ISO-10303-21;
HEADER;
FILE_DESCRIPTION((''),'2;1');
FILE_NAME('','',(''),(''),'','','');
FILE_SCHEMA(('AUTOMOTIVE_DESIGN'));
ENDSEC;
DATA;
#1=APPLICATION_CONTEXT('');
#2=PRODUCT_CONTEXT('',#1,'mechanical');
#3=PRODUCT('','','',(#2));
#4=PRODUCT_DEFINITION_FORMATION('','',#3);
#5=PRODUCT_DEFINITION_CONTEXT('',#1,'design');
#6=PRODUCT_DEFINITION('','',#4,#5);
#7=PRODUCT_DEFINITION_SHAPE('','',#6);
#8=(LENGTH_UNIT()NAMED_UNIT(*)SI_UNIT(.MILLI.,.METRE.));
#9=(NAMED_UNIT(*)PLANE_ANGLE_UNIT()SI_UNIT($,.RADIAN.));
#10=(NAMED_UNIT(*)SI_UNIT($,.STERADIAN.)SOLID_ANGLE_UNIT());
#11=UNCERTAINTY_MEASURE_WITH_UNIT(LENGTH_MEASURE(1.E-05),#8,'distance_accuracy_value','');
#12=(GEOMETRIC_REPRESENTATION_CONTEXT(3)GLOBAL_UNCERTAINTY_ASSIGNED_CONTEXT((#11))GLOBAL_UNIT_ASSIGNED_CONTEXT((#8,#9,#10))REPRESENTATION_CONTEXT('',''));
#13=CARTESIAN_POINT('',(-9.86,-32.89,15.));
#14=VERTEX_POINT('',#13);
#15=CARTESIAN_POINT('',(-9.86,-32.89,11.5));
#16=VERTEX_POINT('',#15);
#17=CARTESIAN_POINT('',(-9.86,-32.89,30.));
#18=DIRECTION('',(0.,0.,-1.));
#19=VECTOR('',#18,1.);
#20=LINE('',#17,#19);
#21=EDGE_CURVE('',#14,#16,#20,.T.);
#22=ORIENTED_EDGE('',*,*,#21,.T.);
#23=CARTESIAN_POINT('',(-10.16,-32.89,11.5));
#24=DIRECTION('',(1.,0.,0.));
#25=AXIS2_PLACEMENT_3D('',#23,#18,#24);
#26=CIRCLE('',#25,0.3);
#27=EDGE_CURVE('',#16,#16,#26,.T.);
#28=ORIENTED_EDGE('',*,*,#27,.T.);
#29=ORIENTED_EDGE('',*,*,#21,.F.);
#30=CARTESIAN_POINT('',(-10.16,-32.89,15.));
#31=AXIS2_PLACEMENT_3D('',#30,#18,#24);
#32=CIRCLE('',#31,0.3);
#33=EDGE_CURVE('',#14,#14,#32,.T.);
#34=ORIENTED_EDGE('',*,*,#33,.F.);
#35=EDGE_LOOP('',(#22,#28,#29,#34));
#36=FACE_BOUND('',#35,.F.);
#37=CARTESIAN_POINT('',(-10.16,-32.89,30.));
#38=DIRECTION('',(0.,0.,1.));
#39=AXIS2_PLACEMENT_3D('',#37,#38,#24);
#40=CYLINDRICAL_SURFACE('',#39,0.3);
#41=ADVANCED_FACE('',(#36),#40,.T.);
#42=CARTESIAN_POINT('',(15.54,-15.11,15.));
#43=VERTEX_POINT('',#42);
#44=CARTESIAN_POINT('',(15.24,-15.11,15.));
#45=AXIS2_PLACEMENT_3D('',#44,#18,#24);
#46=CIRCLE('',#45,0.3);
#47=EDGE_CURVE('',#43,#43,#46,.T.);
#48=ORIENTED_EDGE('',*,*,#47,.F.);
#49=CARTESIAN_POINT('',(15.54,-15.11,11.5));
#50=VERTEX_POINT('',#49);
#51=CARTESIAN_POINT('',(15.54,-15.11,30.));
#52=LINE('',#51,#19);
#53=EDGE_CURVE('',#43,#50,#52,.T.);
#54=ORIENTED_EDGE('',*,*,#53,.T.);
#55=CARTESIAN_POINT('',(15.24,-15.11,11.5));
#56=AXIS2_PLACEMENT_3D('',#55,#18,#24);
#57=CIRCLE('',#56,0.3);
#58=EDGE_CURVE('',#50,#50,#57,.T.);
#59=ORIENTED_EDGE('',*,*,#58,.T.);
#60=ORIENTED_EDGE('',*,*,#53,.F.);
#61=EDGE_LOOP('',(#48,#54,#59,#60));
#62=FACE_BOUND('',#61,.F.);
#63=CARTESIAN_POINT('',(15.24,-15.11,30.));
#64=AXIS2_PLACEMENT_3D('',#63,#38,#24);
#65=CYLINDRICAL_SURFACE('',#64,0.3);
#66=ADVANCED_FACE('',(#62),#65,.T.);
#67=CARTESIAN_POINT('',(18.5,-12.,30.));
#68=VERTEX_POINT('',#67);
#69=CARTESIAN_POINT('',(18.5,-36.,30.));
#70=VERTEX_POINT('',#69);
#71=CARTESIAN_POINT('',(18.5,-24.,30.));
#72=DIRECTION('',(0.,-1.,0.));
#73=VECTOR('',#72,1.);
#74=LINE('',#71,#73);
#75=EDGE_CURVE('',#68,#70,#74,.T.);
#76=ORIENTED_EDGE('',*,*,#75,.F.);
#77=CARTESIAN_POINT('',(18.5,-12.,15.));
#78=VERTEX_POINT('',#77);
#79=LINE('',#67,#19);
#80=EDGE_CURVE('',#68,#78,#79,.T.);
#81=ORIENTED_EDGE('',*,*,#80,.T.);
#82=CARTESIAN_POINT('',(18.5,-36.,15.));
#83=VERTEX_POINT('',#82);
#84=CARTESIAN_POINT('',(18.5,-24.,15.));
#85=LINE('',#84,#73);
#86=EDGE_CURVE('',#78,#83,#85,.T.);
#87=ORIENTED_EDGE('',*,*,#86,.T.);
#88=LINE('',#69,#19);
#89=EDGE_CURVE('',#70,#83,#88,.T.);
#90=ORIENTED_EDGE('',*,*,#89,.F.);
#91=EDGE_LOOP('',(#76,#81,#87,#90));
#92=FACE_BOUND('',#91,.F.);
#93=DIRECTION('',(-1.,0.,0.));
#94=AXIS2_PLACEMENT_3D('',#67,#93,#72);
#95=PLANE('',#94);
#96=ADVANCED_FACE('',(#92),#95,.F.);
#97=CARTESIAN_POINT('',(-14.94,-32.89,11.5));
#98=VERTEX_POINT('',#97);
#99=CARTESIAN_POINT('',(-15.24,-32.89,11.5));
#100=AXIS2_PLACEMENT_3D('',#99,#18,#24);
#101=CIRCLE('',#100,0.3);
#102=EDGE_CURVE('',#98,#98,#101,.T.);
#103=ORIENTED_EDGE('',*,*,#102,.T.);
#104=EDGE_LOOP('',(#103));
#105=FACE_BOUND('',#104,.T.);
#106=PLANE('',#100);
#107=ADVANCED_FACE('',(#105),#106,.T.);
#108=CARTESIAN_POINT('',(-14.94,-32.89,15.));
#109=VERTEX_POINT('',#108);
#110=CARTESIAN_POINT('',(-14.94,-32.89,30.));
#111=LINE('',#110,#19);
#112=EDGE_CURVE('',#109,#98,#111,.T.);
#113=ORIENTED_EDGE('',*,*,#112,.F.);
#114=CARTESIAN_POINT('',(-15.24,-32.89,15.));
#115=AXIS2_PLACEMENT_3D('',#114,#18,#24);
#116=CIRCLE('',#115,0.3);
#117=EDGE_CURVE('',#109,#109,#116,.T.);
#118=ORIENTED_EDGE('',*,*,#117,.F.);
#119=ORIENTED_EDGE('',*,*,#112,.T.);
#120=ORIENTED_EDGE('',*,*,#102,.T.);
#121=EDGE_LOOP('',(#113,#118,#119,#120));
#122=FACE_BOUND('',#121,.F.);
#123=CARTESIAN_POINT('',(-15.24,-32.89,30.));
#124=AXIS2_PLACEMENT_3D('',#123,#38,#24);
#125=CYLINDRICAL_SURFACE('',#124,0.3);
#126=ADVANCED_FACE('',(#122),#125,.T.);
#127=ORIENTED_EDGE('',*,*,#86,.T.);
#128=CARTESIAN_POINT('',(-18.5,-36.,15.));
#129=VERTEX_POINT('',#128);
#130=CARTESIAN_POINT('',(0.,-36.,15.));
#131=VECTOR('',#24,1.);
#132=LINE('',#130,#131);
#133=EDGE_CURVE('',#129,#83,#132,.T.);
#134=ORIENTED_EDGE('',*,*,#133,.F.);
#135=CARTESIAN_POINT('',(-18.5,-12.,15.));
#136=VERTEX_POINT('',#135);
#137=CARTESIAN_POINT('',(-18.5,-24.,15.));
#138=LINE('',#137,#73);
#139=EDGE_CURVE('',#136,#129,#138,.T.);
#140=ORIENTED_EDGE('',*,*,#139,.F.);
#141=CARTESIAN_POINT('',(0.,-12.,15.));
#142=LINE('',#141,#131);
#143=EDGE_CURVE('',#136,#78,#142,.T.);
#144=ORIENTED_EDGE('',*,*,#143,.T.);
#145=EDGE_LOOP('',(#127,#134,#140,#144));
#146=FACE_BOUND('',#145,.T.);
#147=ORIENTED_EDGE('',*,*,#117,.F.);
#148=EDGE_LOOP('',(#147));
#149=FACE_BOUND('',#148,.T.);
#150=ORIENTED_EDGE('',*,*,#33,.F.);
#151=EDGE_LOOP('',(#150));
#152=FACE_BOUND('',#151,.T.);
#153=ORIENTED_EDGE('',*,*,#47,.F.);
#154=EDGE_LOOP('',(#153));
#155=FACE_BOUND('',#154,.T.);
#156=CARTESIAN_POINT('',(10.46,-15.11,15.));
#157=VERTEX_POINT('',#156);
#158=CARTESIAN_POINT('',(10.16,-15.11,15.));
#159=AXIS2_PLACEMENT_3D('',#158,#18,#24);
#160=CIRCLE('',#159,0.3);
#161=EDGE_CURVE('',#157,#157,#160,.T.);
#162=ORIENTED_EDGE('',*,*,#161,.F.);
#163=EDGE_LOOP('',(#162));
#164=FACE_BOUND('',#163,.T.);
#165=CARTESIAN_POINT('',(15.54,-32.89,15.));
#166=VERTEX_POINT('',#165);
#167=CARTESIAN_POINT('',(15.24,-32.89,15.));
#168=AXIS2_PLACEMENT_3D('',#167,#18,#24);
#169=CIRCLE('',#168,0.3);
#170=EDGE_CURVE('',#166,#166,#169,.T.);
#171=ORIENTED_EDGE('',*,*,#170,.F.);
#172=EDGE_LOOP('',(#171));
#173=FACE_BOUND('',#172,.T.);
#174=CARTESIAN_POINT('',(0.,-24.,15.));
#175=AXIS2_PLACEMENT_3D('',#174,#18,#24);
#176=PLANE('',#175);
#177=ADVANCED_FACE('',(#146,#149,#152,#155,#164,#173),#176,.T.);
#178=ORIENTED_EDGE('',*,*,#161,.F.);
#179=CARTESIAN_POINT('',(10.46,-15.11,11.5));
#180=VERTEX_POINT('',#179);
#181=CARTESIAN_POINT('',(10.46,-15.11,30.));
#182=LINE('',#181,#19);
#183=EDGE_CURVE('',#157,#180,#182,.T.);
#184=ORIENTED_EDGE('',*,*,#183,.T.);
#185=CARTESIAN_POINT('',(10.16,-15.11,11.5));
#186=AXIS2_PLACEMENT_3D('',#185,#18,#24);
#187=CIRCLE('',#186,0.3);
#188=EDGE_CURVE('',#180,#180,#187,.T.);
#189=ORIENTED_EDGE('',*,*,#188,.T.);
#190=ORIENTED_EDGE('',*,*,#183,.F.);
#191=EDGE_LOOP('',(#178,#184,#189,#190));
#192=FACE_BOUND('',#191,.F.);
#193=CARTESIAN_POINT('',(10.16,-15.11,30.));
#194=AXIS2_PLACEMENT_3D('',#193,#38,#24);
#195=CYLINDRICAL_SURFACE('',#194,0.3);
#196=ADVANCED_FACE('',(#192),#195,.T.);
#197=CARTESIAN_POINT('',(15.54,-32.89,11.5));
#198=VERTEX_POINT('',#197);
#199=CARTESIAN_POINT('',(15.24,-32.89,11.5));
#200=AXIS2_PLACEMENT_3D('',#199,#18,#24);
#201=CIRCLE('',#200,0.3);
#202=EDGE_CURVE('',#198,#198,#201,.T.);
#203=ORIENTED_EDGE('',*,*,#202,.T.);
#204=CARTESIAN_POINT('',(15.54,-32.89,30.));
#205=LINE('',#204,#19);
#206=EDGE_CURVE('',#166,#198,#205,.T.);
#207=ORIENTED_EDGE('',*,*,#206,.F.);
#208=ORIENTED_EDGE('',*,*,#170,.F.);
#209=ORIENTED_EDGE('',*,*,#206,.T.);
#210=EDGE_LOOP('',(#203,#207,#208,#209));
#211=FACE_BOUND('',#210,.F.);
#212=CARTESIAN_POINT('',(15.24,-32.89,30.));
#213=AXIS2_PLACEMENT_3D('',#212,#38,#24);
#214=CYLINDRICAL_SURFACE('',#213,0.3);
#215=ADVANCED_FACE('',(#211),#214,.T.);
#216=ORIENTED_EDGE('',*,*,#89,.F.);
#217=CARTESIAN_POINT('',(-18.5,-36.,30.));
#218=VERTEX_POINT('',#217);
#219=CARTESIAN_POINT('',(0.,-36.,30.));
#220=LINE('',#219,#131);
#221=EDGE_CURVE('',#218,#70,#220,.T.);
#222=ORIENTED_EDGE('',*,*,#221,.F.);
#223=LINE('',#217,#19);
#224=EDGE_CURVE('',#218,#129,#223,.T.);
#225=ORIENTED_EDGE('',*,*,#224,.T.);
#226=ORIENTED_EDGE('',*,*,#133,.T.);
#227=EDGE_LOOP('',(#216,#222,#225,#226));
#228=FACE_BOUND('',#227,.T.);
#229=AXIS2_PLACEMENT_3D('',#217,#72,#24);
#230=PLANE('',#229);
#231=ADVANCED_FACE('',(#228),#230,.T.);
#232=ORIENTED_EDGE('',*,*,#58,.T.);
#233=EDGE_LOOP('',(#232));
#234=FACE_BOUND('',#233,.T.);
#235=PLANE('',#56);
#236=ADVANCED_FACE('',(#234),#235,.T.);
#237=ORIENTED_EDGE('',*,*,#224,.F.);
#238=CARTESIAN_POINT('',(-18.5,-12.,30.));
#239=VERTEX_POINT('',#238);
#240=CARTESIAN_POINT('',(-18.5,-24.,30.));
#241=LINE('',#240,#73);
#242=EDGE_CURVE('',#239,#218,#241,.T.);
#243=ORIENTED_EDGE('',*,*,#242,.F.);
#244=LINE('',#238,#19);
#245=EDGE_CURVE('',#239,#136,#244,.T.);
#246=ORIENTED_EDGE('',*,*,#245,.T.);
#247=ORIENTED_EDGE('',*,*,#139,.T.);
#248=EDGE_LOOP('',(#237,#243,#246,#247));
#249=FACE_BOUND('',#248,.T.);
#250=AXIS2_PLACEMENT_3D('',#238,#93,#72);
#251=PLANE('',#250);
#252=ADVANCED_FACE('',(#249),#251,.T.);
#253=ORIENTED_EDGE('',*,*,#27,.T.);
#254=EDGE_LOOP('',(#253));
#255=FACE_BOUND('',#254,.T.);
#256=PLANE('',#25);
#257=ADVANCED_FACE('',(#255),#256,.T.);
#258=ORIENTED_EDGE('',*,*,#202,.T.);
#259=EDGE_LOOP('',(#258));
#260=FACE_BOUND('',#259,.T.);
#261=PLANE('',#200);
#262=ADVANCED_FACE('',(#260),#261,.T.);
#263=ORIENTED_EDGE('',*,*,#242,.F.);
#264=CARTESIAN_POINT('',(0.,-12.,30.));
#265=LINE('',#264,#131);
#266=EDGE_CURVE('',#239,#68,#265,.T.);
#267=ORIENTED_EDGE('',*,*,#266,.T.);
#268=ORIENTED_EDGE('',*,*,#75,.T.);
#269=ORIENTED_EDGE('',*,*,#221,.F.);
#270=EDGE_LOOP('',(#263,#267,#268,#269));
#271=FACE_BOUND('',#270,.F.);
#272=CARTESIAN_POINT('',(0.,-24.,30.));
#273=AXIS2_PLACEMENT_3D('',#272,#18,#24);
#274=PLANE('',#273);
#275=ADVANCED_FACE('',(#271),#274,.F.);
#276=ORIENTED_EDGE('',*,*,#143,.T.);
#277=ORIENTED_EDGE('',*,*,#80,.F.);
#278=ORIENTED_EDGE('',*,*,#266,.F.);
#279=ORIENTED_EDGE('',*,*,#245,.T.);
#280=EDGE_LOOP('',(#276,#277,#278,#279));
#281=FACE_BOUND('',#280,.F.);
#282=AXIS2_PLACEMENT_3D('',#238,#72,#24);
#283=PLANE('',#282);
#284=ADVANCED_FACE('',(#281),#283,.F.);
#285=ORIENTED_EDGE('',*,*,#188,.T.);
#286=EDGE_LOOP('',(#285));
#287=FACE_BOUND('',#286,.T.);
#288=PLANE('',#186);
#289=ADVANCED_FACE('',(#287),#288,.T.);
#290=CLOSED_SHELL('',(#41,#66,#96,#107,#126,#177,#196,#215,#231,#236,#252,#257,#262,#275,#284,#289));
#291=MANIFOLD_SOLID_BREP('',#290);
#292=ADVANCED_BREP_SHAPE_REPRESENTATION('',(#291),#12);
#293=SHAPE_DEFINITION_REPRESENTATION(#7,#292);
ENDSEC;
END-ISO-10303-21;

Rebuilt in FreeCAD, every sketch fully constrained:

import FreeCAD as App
import Part
import Sketcher

V = App.Vector
Q = App.Units.Quantity


def add_polygon(sketch, points):
    """Adds a closed chain of lines whose ends are joined by coincident constraints."""
    first, n = sketch.GeometryCount, len(points)
    for a, b in zip(points, points[1:] + points[:1]):
        sketch.addGeometry(Part.LineSegment(App.Vector(*a, 0), App.Vector(*b, 0)), False)
    for i in range(n):
        sketch.addConstraint(Sketcher.Constraint("Coincident", first + i, 2, first + (i + 1) % n, 1))

doc = App.newDocument("Part")
body = doc.addObject("PartDesign::Body", "Body")

# Sketch on XY plane
sketch1 = body.newObject("Sketcher::SketchObject", "Sketch")
sketch1.AttachmentSupport = (doc.getObject("XY_Plane"), [""])
sketch1.MapMode = "FlatFace"
add_polygon(sketch1, [(-18.5, 12), (-18.5, -12), (18.5, -12), (18.5, 12)])  # lines 0-3
sketch1.addGeometry(Part.Circle(V(10.16, -8.89, 0), V(0, 0, 1), 0.3), False)  # 4
sketch1.addGeometry(Part.Circle(V(15.24, -8.89, 0), V(0, 0, 1), 0.3), False)  # 5
sketch1.addGeometry(Part.Circle(V(-15.24, 8.89, 0), V(0, 0, 1), 0.3), False)  # 6
sketch1.addGeometry(Part.Circle(V(-10.16, 8.89, 0), V(0, 0, 1), 0.3), False)  # 7
sketch1.addGeometry(Part.Circle(V(15.24, 8.89, 0), V(0, 0, 1), 0.3), False)  # 8
sketch1.addConstraint([
    Sketcher.Constraint("Vertical", 0),
    Sketcher.Constraint("Horizontal", 1),
    Sketcher.Constraint("Vertical", 2),
    Sketcher.Constraint("Horizontal", 3),
    Sketcher.Constraint("Equal", 4, 5),
    Sketcher.Constraint("Equal", 5, 6),
    Sketcher.Constraint("Equal", 6, 7),
    Sketcher.Constraint("Equal", 7, 8),
    Sketcher.Constraint("Symmetric", 5, 3, 6, 3, -1, 1),
    Sketcher.Constraint("Symmetric", 4, 3, 7, 3, -1, 1),
    Sketcher.Constraint("Symmetric", 0, 2, 2, 2, -1, 1),
    Sketcher.Constraint("Symmetric", 6, 3, 8, 3, -2),
    Sketcher.Constraint("Horizontal", 4, 3, 5, 3),
    Sketcher.Constraint("Diameter", 4, Q("0.6 mm")),
    Sketcher.Constraint("DistanceX", 1, 1, 1, 2, Q("37 mm")),
    Sketcher.Constraint("DistanceY", 0, 2, 0, 1, Q("24 mm")),
    Sketcher.Constraint("DistanceX", 6, 3, 4, 3, Q("25.4 mm")),
    Sketcher.Constraint("DistanceX", -1, 1, 4, 3, Q("10.16 mm")),
    Sketcher.Constraint("DistanceY", 4, 3, -1, 1, Q("8.89 mm")),
])
pad1 = body.newObject("PartDesign::Pad", "Pad")
pad1.Profile = sketch1
pad1.Length = 15

# Sketch on XY plane
sketch2 = body.newObject("Sketcher::SketchObject", "Sketch001")
sketch2.AttachmentSupport = (doc.getObject("XY_Plane"), [""])
sketch2.MapMode = "FlatFace"
sketch2.addGeometry([
    Part.Circle(V(15.24, 8.89, 0), V(0, 0, 1), 0.3),  # 0
    Part.Circle(V(-10.16, 8.89, 0), V(0, 0, 1), 0.3),  # 1
    Part.Circle(V(-15.24, 8.89, 0), V(0, 0, 1), 0.3),  # 2
    Part.Circle(V(15.24, -8.89, 0), V(0, 0, 1), 0.3),  # 3
    Part.Circle(V(10.16, -8.89, 0), V(0, 0, 1), 0.3),  # 4
], False)
sketch2.addConstraint([
    Sketcher.Constraint("Equal", 0, 1),
    Sketcher.Constraint("Equal", 1, 2),
    Sketcher.Constraint("Equal", 2, 3),
    Sketcher.Constraint("Equal", 3, 4),
    Sketcher.Constraint("Symmetric", 2, 3, 3, 3, -1, 1),
    Sketcher.Constraint("Symmetric", 1, 3, 4, 3, -1, 1),
    Sketcher.Constraint("Symmetric", 0, 3, 2, 3, -2),
    Sketcher.Constraint("Horizontal", 0, 3, 1, 3),
    Sketcher.Constraint("Diameter", 0, Q("0.6 mm")),
    Sketcher.Constraint("DistanceX", 1, 3, 0, 3, Q("25.4 mm")),
    Sketcher.Constraint("DistanceX", -1, 1, 0, 3, Q("15.24 mm")),
    Sketcher.Constraint("DistanceY", -1, 1, 0, 3, Q("8.89 mm")),
])
pad2 = body.newObject("PartDesign::Pad", "Pad001")
pad2.Profile = sketch2
pad2.Length = 18.5
body2 = doc.addObject("PartDesign::Body", "Body001")
doc.recompute()

body.Placement = App.Placement(V(0, -24, 30), App.Rotation(V(1, 0, 0), 180))
boolean = body2.newObject("PartDesign::Boolean", "Boolean")
boolean.Type = "Fuse"
boolean.addObjects([body])

doc.recompute()
